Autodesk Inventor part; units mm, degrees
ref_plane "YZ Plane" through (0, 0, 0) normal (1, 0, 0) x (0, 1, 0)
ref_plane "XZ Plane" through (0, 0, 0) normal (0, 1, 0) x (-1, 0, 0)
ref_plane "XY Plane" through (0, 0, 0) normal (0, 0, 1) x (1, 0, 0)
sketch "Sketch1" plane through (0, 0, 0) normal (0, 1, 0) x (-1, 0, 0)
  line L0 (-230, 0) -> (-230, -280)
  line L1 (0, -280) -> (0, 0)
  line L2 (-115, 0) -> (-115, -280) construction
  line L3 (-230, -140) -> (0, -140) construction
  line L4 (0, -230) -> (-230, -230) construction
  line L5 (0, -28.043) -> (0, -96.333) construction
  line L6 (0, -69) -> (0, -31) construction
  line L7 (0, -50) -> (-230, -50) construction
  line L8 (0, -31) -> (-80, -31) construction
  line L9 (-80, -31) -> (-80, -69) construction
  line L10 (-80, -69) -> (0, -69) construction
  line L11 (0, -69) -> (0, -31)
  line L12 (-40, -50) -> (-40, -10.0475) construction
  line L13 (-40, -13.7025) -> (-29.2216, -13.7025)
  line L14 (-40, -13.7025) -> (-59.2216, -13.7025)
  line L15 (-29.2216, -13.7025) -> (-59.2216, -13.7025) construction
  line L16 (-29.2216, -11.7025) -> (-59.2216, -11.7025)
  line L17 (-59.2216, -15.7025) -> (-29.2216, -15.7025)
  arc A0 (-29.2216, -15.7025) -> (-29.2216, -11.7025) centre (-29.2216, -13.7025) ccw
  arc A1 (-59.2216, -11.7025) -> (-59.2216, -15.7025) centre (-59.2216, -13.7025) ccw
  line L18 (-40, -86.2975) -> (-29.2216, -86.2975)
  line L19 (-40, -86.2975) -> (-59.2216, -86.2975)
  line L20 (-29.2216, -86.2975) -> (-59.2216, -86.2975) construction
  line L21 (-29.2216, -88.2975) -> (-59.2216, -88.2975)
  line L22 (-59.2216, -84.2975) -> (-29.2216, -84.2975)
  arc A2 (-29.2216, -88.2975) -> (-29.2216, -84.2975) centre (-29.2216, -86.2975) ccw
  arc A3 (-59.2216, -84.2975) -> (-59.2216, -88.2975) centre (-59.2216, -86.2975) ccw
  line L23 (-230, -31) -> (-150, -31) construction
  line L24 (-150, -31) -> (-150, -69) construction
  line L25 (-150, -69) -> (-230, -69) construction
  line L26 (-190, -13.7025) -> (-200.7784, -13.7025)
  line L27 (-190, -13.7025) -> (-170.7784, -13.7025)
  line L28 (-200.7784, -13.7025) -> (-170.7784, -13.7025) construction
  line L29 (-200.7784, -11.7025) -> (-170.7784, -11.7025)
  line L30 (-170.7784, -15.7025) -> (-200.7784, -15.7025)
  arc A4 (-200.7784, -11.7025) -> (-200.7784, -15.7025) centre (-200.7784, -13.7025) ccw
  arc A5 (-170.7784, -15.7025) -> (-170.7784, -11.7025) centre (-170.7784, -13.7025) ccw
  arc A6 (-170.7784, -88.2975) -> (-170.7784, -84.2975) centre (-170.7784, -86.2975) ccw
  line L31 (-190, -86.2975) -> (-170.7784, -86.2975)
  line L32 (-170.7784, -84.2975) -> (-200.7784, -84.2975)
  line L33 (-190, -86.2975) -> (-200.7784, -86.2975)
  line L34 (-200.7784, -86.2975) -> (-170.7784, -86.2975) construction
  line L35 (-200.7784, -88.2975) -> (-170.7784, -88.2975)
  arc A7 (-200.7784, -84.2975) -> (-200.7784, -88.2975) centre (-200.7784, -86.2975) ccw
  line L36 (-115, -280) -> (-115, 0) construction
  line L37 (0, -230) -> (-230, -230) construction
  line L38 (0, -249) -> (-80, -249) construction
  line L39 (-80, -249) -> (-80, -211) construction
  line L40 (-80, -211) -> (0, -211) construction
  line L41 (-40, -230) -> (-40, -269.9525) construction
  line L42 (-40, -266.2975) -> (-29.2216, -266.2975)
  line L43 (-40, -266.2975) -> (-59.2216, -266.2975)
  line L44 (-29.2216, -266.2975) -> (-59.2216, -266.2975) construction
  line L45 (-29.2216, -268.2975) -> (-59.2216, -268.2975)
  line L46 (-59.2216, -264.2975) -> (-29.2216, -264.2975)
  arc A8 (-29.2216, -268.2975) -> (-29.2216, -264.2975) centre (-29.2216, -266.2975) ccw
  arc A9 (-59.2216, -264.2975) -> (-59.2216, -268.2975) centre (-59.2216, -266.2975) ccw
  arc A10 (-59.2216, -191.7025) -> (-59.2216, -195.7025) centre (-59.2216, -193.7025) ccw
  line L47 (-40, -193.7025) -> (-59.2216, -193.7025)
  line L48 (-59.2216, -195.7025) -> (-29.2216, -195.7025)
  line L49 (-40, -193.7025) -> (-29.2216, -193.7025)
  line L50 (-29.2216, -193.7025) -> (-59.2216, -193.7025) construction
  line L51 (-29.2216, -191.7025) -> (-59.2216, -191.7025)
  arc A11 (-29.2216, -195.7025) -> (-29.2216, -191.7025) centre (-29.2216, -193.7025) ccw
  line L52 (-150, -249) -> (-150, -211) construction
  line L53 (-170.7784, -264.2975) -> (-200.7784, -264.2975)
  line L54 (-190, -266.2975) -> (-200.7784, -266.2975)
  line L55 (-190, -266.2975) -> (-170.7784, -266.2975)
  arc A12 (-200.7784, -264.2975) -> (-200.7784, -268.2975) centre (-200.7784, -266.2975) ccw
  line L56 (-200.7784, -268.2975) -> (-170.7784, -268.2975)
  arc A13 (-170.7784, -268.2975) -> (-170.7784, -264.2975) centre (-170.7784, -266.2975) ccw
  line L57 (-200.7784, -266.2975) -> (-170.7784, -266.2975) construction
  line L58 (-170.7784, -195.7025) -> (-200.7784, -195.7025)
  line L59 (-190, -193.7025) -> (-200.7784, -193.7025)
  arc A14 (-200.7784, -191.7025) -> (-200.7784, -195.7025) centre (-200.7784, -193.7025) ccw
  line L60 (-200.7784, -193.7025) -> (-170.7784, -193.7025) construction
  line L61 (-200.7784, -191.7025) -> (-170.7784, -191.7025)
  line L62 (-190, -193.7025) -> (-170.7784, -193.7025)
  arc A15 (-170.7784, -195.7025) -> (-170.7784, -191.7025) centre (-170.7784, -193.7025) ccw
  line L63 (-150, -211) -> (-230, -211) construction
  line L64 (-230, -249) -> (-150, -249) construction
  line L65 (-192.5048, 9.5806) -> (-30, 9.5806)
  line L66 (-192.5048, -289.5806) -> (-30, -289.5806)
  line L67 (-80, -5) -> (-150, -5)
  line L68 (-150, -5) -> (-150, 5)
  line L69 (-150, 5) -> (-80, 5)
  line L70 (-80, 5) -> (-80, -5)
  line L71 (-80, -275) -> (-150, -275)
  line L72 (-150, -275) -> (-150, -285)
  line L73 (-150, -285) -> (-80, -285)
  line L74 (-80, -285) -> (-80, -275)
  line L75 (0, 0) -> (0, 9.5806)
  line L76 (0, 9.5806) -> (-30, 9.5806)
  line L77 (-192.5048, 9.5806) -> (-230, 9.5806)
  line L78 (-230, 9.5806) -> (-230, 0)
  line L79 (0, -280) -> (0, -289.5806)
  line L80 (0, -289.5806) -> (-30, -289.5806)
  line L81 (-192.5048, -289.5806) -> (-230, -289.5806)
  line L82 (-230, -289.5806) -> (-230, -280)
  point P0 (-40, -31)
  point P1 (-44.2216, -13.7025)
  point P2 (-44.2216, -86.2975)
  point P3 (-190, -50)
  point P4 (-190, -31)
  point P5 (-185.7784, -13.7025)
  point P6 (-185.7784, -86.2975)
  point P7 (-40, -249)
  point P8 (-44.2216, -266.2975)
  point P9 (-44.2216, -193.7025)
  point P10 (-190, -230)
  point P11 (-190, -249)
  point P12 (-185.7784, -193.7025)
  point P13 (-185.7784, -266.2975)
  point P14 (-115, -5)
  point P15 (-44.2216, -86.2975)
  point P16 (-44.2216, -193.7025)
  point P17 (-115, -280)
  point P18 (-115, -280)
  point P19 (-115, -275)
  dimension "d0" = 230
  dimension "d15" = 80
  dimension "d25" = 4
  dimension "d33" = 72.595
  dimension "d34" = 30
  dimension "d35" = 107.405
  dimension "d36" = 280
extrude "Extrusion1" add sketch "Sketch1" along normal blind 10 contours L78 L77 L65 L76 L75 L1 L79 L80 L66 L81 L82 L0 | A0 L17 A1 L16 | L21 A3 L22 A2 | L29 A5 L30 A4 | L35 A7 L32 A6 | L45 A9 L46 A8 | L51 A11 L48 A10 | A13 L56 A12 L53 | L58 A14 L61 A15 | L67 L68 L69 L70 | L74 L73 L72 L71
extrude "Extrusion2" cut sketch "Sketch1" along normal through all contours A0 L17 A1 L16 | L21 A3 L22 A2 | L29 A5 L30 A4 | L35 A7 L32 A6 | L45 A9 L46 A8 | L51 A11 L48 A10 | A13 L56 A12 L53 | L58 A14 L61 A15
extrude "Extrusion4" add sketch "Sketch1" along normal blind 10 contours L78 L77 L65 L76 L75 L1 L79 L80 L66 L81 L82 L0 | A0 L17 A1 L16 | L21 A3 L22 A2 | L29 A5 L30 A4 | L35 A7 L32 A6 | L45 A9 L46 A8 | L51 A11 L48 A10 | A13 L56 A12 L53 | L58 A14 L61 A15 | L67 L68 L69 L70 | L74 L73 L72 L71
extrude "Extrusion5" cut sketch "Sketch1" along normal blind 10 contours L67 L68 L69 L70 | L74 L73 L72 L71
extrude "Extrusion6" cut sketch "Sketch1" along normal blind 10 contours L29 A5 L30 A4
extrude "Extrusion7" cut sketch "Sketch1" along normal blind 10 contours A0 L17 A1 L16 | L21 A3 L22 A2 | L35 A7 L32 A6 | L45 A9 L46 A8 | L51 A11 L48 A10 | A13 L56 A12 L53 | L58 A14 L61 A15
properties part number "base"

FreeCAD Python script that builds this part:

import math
import FreeCAD as App
import Part
import Sketcher

V = App.Vector
Q = App.Units.Quantity

doc = App.newDocument("Part")
body = doc.addObject("PartDesign::Body", "Body")

sketch1 = body.newObject("Sketcher::SketchObject", "Sketch")
sketch1.AttachmentSupport = (doc.getObject("XZ_Plane"), [""])
sketch1.MapMode = "FlatFace"
sketch1.addGeometry(Part.LineSegment(V(230, 10, 0), V(230, -290, 0)), False)
sketch1.addGeometry(Part.LineSegment(V(230, -290, 0), V(0, -290, 0)), False)
sketch1.addGeometry(Part.LineSegment(V(0, -290, 0), V(0, 10, 0)), False)
sketch1.addGeometry(Part.LineSegment(V(0, 10, 0), V(230, 10, 0)), False)
sketch1.addConstraint(Sketcher.Constraint("Coincident", 0, 2, 1, 1))
sketch1.addConstraint(Sketcher.Constraint("Coincident", 1, 2, 2, 1))
sketch1.addConstraint(Sketcher.Constraint("Coincident", 2, 2, 3, 1))
sketch1.addConstraint(Sketcher.Constraint("Coincident", 3, 2, 0, 1))
sketch1.addConstraint(Sketcher.Constraint("Vertical", 0))
sketch1.addConstraint(Sketcher.Constraint("Horizontal", 1))
sketch1.addConstraint(Sketcher.Constraint("Vertical", 2))
sketch1.addConstraint(Sketcher.Constraint("Horizontal", 3))
sketch1.addConstraint(Sketcher.Constraint("PointOnObject", 1, 2, -2))
sketch1.addConstraint(Sketcher.Constraint("DistanceX", 1, 2, 1, 1, Q("230 mm")))
sketch1.addConstraint(Sketcher.Constraint("DistanceY", 0, 2, 0, 1, Q("299.1612 mm")))
sketch1.addConstraint(Sketcher.Constraint("DistanceY", 0, 2, -1, 1, Q("289.5806 mm")))
pad1 = body.newObject("PartDesign::Pad", "Pad")
pad1.Profile = sketch1
pad1.Length = 10
pad1.Reversed = True

sketch2 = body.newObject("Sketcher::SketchObject", "Sketch001")
sketch2.AttachmentSupport = (doc.getObject("XZ_Plane"), [""])
sketch2.MapMode = "FlatFace"
sketch2.addGeometry(Part.ArcOfCircle(Part.Circle(V(29.2, -13.7, 0), V(0, 0, 1), 2), math.radians(90), math.radians(270)), False)
sketch2.addGeometry(Part.LineSegment(V(29.2, -11.7, 0), V(59.2, -11.7, 0)), False)
sketch2.addGeometry(Part.ArcOfCircle(Part.Circle(V(59.2, -13.7, 0), V(0, 0, 1), 2), math.radians(-90), math.radians(90)), False)
sketch2.addGeometry(Part.LineSegment(V(59.2, -15.7, 0), V(29.2, -15.7, 0)), False)
sketch2.addGeometry(Part.LineSegment(V(59.2, -88.3, 0), V(29.2, -88.3, 0)), False)
sketch2.addGeometry(Part.ArcOfCircle(Part.Circle(V(29.2, -86.3, 0), V(0, 0, 1), 2), math.radians(90), math.radians(270)), False)
sketch2.addGeometry(Part.LineSegment(V(29.2, -84.3, 0), V(59.2, -84.3, 0)), False)
sketch2.addGeometry(Part.ArcOfCircle(Part.Circle(V(59.2, -86.3, 0), V(0, 0, 1), 2), math.radians(-90), math.radians(90)), False)
sketch2.addGeometry(Part.LineSegment(V(170.8, -11.7, 0), V(200.8, -11.7, 0)), False)
sketch2.addGeometry(Part.ArcOfCircle(Part.Circle(V(200.8, -13.7, 0), V(0, 0, 1), 2), math.radians(-90), math.radians(90)), False)
sketch2.addGeometry(Part.LineSegment(V(200.8, -15.7, 0), V(170.8, -15.7, 0)), False)
sketch2.addGeometry(Part.ArcOfCircle(Part.Circle(V(170.8, -13.7, 0), V(0, 0, 1), 2), math.radians(90), math.radians(270)), False)
sketch2.addGeometry(Part.LineSegment(V(200.8, -88.3, 0), V(170.8, -88.3, 0)), False)
sketch2.addGeometry(Part.ArcOfCircle(Part.Circle(V(170.8, -86.3, 0), V(0, 0, 1), 2), math.radians(90), math.radians(270)), False)
sketch2.addGeometry(Part.LineSegment(V(170.8, -84.3, 0), V(200.8, -84.3, 0)), False)
sketch2.addGeometry(Part.ArcOfCircle(Part.Circle(V(200.8, -86.3, 0), V(0, 0, 1), 2), math.radians(-90), math.radians(90)), False)
sketch2.addGeometry(Part.LineSegment(V(59.2, -268.3, 0), V(29.2, -268.3, 0)), False)
sketch2.addGeometry(Part.ArcOfCircle(Part.Circle(V(29.2, -266.3, 0), V(0, 0, 1), 2), math.radians(90), math.radians(270)), False)
sketch2.addGeometry(Part.LineSegment(V(29.2, -264.3, 0), V(59.2, -264.3, 0)), False)
sketch2.addGeometry(Part.ArcOfCircle(Part.Circle(V(59.2, -266.3, 0), V(0, 0, 1), 2), math.radians(-90), math.radians(90)), False)
sketch2.addGeometry(Part.LineSegment(V(29.2, -191.7, 0), V(59.2, -191.7, 0)), False)
sketch2.addGeometry(Part.ArcOfCircle(Part.Circle(V(59.2, -193.7, 0), V(0, 0, 1), 2), math.radians(-90), math.radians(90)), False)
sketch2.addGeometry(Part.LineSegment(V(59.2, -195.7, 0), V(29.2, -195.7, 0)), False)
sketch2.addGeometry(Part.ArcOfCircle(Part.Circle(V(29.2, -193.7, 0), V(0, 0, 1), 2), math.radians(90), math.radians(270)), False)
sketch2.addGeometry(Part.ArcOfCircle(Part.Circle(V(170.8, -266.3, 0), V(0, 0, 1), 2), math.radians(90), math.radians(270)), False)
sketch2.addGeometry(Part.LineSegment(V(170.8, -264.3, 0), V(200.8, -264.3, 0)), False)
sketch2.addGeometry(Part.ArcOfCircle(Part.Circle(V(200.8, -266.3, 0), V(0, 0, 1), 2), math.radians(-90), math.radians(90)), False)
sketch2.addGeometry(Part.LineSegment(V(200.8, -268.3, 0), V(170.8, -268.3, 0)), False)
sketch2.addGeometry(Part.LineSegment(V(200.8, -195.7, 0), V(170.8, -195.7, 0)), False)
sketch2.addGeometry(Part.ArcOfCircle(Part.Circle(V(170.8, -193.7, 0), V(0, 0, 1), 2), math.radians(90), math.radians(270)), False)
sketch2.addGeometry(Part.LineSegment(V(170.8, -191.7, 0), V(200.8, -191.7, 0)), False)
sketch2.addGeometry(Part.ArcOfCircle(Part.Circle(V(200.8, -193.7, 0), V(0, 0, 1), 2), math.radians(-90), math.radians(90)), False)
sketch2.addConstraint(Sketcher.Constraint("Tangent", 0, 1, 1, 1))
sketch2.addConstraint(Sketcher.Constraint("Tangent", 1, 2, 2, 2))
sketch2.addConstraint(Sketcher.Constraint("Tangent", 2, 1, 3, 1))
sketch2.addConstraint(Sketcher.Constraint("Tangent", 3, 2, 0, 2))
sketch2.addConstraint(Sketcher.Constraint("Tangent", 4, 2, 5, 2))
sketch2.addConstraint(Sketcher.Constraint("Tangent", 5, 1, 6, 1))
sketch2.addConstraint(Sketcher.Constraint("Tangent", 6, 2, 7, 2))
sketch2.addConstraint(Sketcher.Constraint("Tangent", 7, 1, 4, 1))
sketch2.addConstraint(Sketcher.Constraint("Tangent", 8, 2, 9, 2))
sketch2.addConstraint(Sketcher.Constraint("Tangent", 9, 1, 10, 1))
sketch2.addConstraint(Sketcher.Constraint("Tangent", 10, 2, 11, 2))
sketch2.addConstraint(Sketcher.Constraint("Tangent", 11, 1, 8, 1))
sketch2.addConstraint(Sketcher.Constraint("Tangent", 12, 2, 13, 2))
sketch2.addConstraint(Sketcher.Constraint("Tangent", 13, 1, 14, 1))
sketch2.addConstraint(Sketcher.Constraint("Tangent", 14, 2, 15, 2))
sketch2.addConstraint(Sketcher.Constraint("Tangent", 15, 1, 12, 1))
sketch2.addConstraint(Sketcher.Constraint("Tangent", 16, 2, 17, 2))
sketch2.addConstraint(Sketcher.Constraint("Tangent", 17, 1, 18, 1))
sketch2.addConstraint(Sketcher.Constraint("Tangent", 18, 2, 19, 2))
sketch2.addConstraint(Sketcher.Constraint("Tangent", 19, 1, 16, 1))
sketch2.addConstraint(Sketcher.Constraint("Tangent", 20, 2, 21, 2))
sketch2.addConstraint(Sketcher.Constraint("Tangent", 21, 1, 22, 1))
sketch2.addConstraint(Sketcher.Constraint("Tangent", 22, 2, 23, 2))
sketch2.addConstraint(Sketcher.Constraint("Tangent", 23, 1, 20, 1))
sketch2.addConstraint(Sketcher.Constraint("Tangent", 24, 1, 25, 1))
sketch2.addConstraint(Sketcher.Constraint("Tangent", 25, 2, 26, 2))
sketch2.addConstraint(Sketcher.Constraint("Tangent", 26, 1, 27, 1))
sketch2.addConstraint(Sketcher.Constraint("Tangent", 27, 2, 24, 2))
sketch2.addConstraint(Sketcher.Constraint("Tangent", 28, 2, 29, 2))
sketch2.addConstraint(Sketcher.Constraint("Tangent", 29, 1, 30, 1))
sketch2.addConstraint(Sketcher.Constraint("Tangent", 30, 2, 31, 2))
sketch2.addConstraint(Sketcher.Constraint("Tangent", 31, 1, 28, 1))
sketch2.addConstraint(Sketcher.Constraint("Horizontal", 1))
sketch2.addConstraint(Sketcher.Constraint("Horizontal", 3))
sketch2.addConstraint(Sketcher.Constraint("Horizontal", 4))
sketch2.addConstraint(Sketcher.Constraint("Horizontal", 6))
sketch2.addConstraint(Sketcher.Constraint("Horizontal", 8))
sketch2.addConstraint(Sketcher.Constraint("Horizontal", 10))
sketch2.addConstraint(Sketcher.Constraint("Horizontal", 12))
sketch2.addConstraint(Sketcher.Constraint("Horizontal", 14))
sketch2.addConstraint(Sketcher.Constraint("Horizontal", 16))
sketch2.addConstraint(Sketcher.Constraint("Horizontal", 18))
sketch2.addConstraint(Sketcher.Constraint("Horizontal", 20))
sketch2.addConstraint(Sketcher.Constraint("Horizontal", 22))
sketch2.addConstraint(Sketcher.Constraint("Horizontal", 25))
sketch2.addConstraint(Sketcher.Constraint("Horizontal", 27))
sketch2.addConstraint(Sketcher.Constraint("Horizontal", 28))
sketch2.addConstraint(Sketcher.Constraint("Horizontal", 30))
sketch2.addConstraint(Sketcher.Constraint("Equal", 2, 5))
sketch2.addConstraint(Sketcher.Constraint("Equal", 7, 9))
sketch2.addConstraint(Sketcher.Constraint("Equal", 11, 13))
sketch2.addConstraint(Sketcher.Constraint("Equal", 15, 17))
sketch2.addConstraint(Sketcher.Constraint("Equal", 19, 21))
sketch2.addConstraint(Sketcher.Constraint("Equal", 23, 24))
sketch2.addConstraint(Sketcher.Constraint("Equal", 26, 29))
sketch2.addConstraint(Sketcher.Constraint("Horizontal", 2, 3, 9, 3))
sketch2.addConstraint(Sketcher.Constraint("Horizontal", 7, 3, 13, 3))
sketch2.addConstraint(Sketcher.Constraint("Horizontal", 19, 3, 24, 3))
sketch2.addConstraint(Sketcher.Constraint("Horizontal", 23, 3, 29, 3))
sketch2.addConstraint(Sketcher.Constraint("Vertical", 0, 3, 5, 3))
sketch2.addConstraint(Sketcher.Constraint("Vertical", 2, 3, 7, 3))
sketch2.addConstraint(Sketcher.Constraint("Vertical", 11, 3, 13, 3))
sketch2.addConstraint(Sketcher.Constraint("Vertical", 9, 3, 15, 3))
sketch2.addConstraint(Sketcher.Constraint("Vertical", 5, 3, 17, 3))
sketch2.addConstraint(Sketcher.Constraint("Vertical", 7, 3, 19, 3))
sketch2.addConstraint(Sketcher.Constraint("Vertical", 19, 3, 21, 3))
sketch2.addConstraint(Sketcher.Constraint("Vertical", 17, 3, 23, 3))
sketch2.addConstraint(Sketcher.Constraint("Vertical", 13, 3, 24, 3))
sketch2.addConstraint(Sketcher.Constraint("Vertical", 15, 3, 26, 3))
sketch2.addConstraint(Sketcher.Constraint("Vertical", 24, 3, 29, 3))
sketch2.addConstraint(Sketcher.Constraint("Vertical", 26, 3, 31, 3))
sketch2.addConstraint(Sketcher.Constraint("Equal", 6, 8))
sketch2.addConstraint(Sketcher.Constraint("Radius", 0, Q("2 mm")))
sketch2.addConstraint(Sketcher.Constraint("DistanceX", 1, 1, 1, 2, Q("30 mm")))
sketch2.addConstraint(Sketcher.Constraint("DistanceY", 5, 3, 0, 3, Q("72.595 mm")))
sketch2.addConstraint(Sketcher.Constraint("DistanceY", 17, 3, 5, 3, Q("180 mm")))
sketch2.addConstraint(Sketcher.Constraint("DistanceY", 19, 3, 21, 3, Q("72.595 mm")))
sketch2.addConstraint(Sketcher.Constraint("DistanceX", -1, 1, 0, 3, Q("29.2216 mm")))
sketch2.addConstraint(Sketcher.Constraint("DistanceY", 0, 3, -1, 1, Q("13.7025 mm")))
sketch2.addConstraint(Sketcher.Constraint("DistanceX", -1, 1, 9, 3, Q("200.7784 mm")))
pocket1 = body.newObject("PartDesign::Pocket", "Pocket")
pocket1.Profile = sketch2
pocket1.Type = "ThroughAll"

sketch3 = body.newObject("Sketcher::SketchObject", "Sketch002")
sketch3.AttachmentSupport = (doc.getObject("XZ_Plane"), [""])
sketch3.MapMode = "FlatFace"
sketch3.addGeometry(Part.LineSegment(V(230, 10, 0), V(230, -290, 0)), False)
sketch3.addGeometry(Part.LineSegment(V(230, -290, 0), V(0, -290, 0)), False)
sketch3.addGeometry(Part.LineSegment(V(0, -290, 0), V(0, 10, 0)), False)
sketch3.addGeometry(Part.LineSegment(V(0, 10, 0), V(230, 10, 0)), False)
sketch3.addConstraint(Sketcher.Constraint("Coincident", 0, 2, 1, 1))
sketch3.addConstraint(Sketcher.Constraint("Coincident", 1, 2, 2, 1))
sketch3.addConstraint(Sketcher.Constraint("Coincident", 2, 2, 3, 1))
sketch3.addConstraint(Sketcher.Constraint("Coincident", 3, 2, 0, 1))
sketch3.addConstraint(Sketcher.Constraint("Vertical", 0))
sketch3.addConstraint(Sketcher.Constraint("Horizontal", 1))
sketch3.addConstraint(Sketcher.Constraint("Vertical", 2))
sketch3.addConstraint(Sketcher.Constraint("Horizontal", 3))
sketch3.addConstraint(Sketcher.Constraint("PointOnObject", 1, 2, -2))
sketch3.addConstraint(Sketcher.Constraint("DistanceX", 1, 2, 1, 1, Q("230 mm")))
sketch3.addConstraint(Sketcher.Constraint("DistanceY", 0, 2, 0, 1, Q("299.1612 mm")))
sketch3.addConstraint(Sketcher.Constraint("DistanceY", 0, 2, -1, 1, Q("289.5806 mm")))
pad2 = body.newObject("PartDesign::Pad", "Pad001")
pad2.Profile = sketch3
pad2.Length = 10
pad2.Reversed = True

sketch4 = body.newObject("Sketcher::SketchObject", "Sketch003")
sketch4.AttachmentSupport = (doc.getObject("XZ_Plane"), [""])
sketch4.MapMode = "FlatFace"
sketch4.addGeometry(Part.LineSegment(V(150, -5, 0), V(80, -5, 0)), False)
sketch4.addGeometry(Part.LineSegment(V(80, -5, 0), V(80, 5, 0)), False)
sketch4.addGeometry(Part.LineSegment(V(80, 5, 0), V(150, 5, 0)), False)
sketch4.addGeometry(Part.LineSegment(V(150, 5, 0), V(150, -5, 0)), False)
sketch4.addGeometry(Part.LineSegment(V(80, -285, 0), V(80, -275, 0)), False)
sketch4.addGeometry(Part.LineSegment(V(80, -275, 0), V(150, -275, 0)), False)
sketch4.addGeometry(Part.LineSegment(V(150, -275, 0), V(150, -285, 0)), False)
sketch4.addGeometry(Part.LineSegment(V(150, -285, 0), V(80, -285, 0)), False)
sketch4.addConstraint(Sketcher.Constraint("Coincident", 0, 2, 1, 1))
sketch4.addConstraint(Sketcher.Constraint("Coincident", 1, 2, 2, 1))
sketch4.addConstraint(Sketcher.Constraint("Coincident", 2, 2, 3, 1))
sketch4.addConstraint(Sketcher.Constraint("Coincident", 3, 2, 0, 1))
sketch4.addConstraint(Sketcher.Constraint("Coincident", 4, 2, 5, 1))
sketch4.addConstraint(Sketcher.Constraint("Coincident", 5, 2, 6, 1))
sketch4.addConstraint(Sketcher.Constraint("Coincident", 6, 2, 7, 1))
sketch4.addConstraint(Sketcher.Constraint("Coincident", 7, 2, 4, 1))
sketch4.addConstraint(Sketcher.Constraint("Horizontal", 0))
sketch4.addConstraint(Sketcher.Constraint("Vertical", 1))
sketch4.addConstraint(Sketcher.Constraint("Horizontal", 2))
sketch4.addConstraint(Sketcher.Constraint("Vertical", 3))
sketch4.addConstraint(Sketcher.Constraint("Vertical", 4))
sketch4.addConstraint(Sketcher.Constraint("Horizontal", 5))
sketch4.addConstraint(Sketcher.Constraint("Vertical", 6))
sketch4.addConstraint(Sketcher.Constraint("Horizontal", 7))
sketch4.addConstraint(Sketcher.Constraint("Vertical", 1, 2, 4, 2))
sketch4.addConstraint(Sketcher.Constraint("Vertical", 3, 2, 5, 2))
sketch4.addConstraint(Sketcher.Constraint("Equal", 3, 4))
sketch4.addConstraint(Sketcher.Constraint("DistanceX", -1, 1, 0, 2, Q("80 mm")))
sketch4.addConstraint(Sketcher.Constraint("DistanceY", 4, 2, 1, 2, Q("280 mm")))
sketch4.addConstraint(Sketcher.Constraint("DistanceX", 0, 2, 0, 1, Q("70 mm")))
sketch4.addConstraint(Sketcher.Constraint("DistanceY", 1, 1, 1, 2, Q("10 mm")))
sketch4.addConstraint(Sketcher.Constraint("DistanceY", 0, 2, -1, 1, Q("5 mm")))
pocket2 = body.newObject("PartDesign::Pocket", "Pocket001")
pocket2.Profile = sketch4
pocket2.Length = 10

sketch5 = body.newObject("Sketcher::SketchObject", "Sketch004")
sketch5.AttachmentSupport = (doc.getObject("XZ_Plane"), [""])
sketch5.MapMode = "FlatFace"
sketch5.addGeometry(Part.LineSegment(V(170.8, -11.7, 0), V(200.8, -11.7, 0)), False)
sketch5.addGeometry(Part.ArcOfCircle(Part.Circle(V(200.8, -13.7, 0), V(0, 0, 1), 2), math.radians(-90), math.radians(90)), False)
sketch5.addGeometry(Part.LineSegment(V(200.8, -15.7, 0), V(170.8, -15.7, 0)), False)
sketch5.addGeometry(Part.ArcOfCircle(Part.Circle(V(170.8, -13.7, 0), V(0, 0, 1), 2), math.radians(90), math.radians(270)), False)
sketch5.addConstraint(Sketcher.Constraint("Tangent", 0, 2, 1, 2))
sketch5.addConstraint(Sketcher.Constraint("Tangent", 1, 1, 2, 1))
sketch5.addConstraint(Sketcher.Constraint("Tangent", 2, 2, 3, 2))
sketch5.addConstraint(Sketcher.Constraint("Tangent", 3, 1, 0, 1))
sketch5.addConstraint(Sketcher.Constraint("Horizontal", 0))
sketch5.addConstraint(Sketcher.Constraint("Horizontal", 2))
sketch5.addConstraint(Sketcher.Constraint("Radius", 1, Q("2 mm")))
sketch5.addConstraint(Sketcher.Constraint("DistanceX", 0, 1, 0, 2, Q("30 mm")))
sketch5.addConstraint(Sketcher.Constraint("DistanceX", -1, 1, 1, 3, Q("200.7784 mm")))
sketch5.addConstraint(Sketcher.Constraint("DistanceY", 1, 3, -1, 1, Q("13.7025 mm")))
pocket3 = body.newObject("PartDesign::Pocket", "Pocket002")
pocket3.Profile = sketch5
pocket3.Length = 10

sketch6 = body.newObject("Sketcher::SketchObject", "Sketch005")
sketch6.AttachmentSupport = (doc.getObject("XZ_Plane"), [""])
sketch6.MapMode = "FlatFace"
sketch6.addGeometry(Part.ArcOfCircle(Part.Circle(V(29.2, -13.7, 0), V(0, 0, 1), 2), math.radians(90), math.radians(270)), False)
sketch6.addGeometry(Part.LineSegment(V(29.2, -11.7, 0), V(59.2, -11.7, 0)), False)
sketch6.addGeometry(Part.ArcOfCircle(Part.Circle(V(59.2, -13.7, 0), V(0, 0, 1), 2), math.radians(-90), math.radians(90)), False)
sketch6.addGeometry(Part.LineSegment(V(59.2, -15.7, 0), V(29.2, -15.7, 0)), False)
sketch6.addGeometry(Part.LineSegment(V(59.2, -88.3, 0), V(29.2, -88.3, 0)), False)
sketch6.addGeometry(Part.ArcOfCircle(Part.Circle(V(29.2, -86.3, 0), V(0, 0, 1), 2), math.radians(90), math.radians(270)), False)
sketch6.addGeometry(Part.LineSegment(V(29.2, -84.3, 0), V(59.2, -84.3, 0)), False)
sketch6.addGeometry(Part.ArcOfCircle(Part.Circle(V(59.2, -86.3, 0), V(0, 0, 1), 2), math.radians(-90), math.radians(90)), False)
sketch6.addGeometry(Part.LineSegment(V(200.8, -88.3, 0), V(170.8, -88.3, 0)), False)
sketch6.addGeometry(Part.ArcOfCircle(Part.Circle(V(170.8, -86.3, 0), V(0, 0, 1), 2), math.radians(90), math.radians(270)), False)
sketch6.addGeometry(Part.LineSegment(V(170.8, -84.3, 0), V(200.8, -84.3, 0)), False)
sketch6.addGeometry(Part.ArcOfCircle(Part.Circle(V(200.8, -86.3, 0), V(0, 0, 1), 2), math.radians(-90), math.radians(90)), False)
sketch6.addGeometry(Part.LineSegment(V(59.2, -268.3, 0), V(29.2, -268.3, 0)), False)
sketch6.addGeometry(Part.ArcOfCircle(Part.Circle(V(29.2, -266.3, 0), V(0, 0, 1), 2), math.radians(90), math.radians(270)), False)
sketch6.addGeometry(Part.LineSegment(V(29.2, -264.3, 0), V(59.2, -264.3, 0)), False)
sketch6.addGeometry(Part.ArcOfCircle(Part.Circle(V(59.2, -266.3, 0), V(0, 0, 1), 2), math.radians(-90), math.radians(90)), False)
sketch6.addGeometry(Part.LineSegment(V(29.2, -191.7, 0), V(59.2, -191.7, 0)), False)
sketch6.addGeometry(Part.ArcOfCircle(Part.Circle(V(59.2, -193.7, 0), V(0, 0, 1), 2), math.radians(-90), math.radians(90)), False)
sketch6.addGeometry(Part.LineSegment(V(59.2, -195.7, 0), V(29.2, -195.7, 0)), False)
sketch6.addGeometry(Part.ArcOfCircle(Part.Circle(V(29.2, -193.7, 0), V(0, 0, 1), 2), math.radians(90), math.radians(270)), False)
sketch6.addGeometry(Part.ArcOfCircle(Part.Circle(V(170.8, -266.3, 0), V(0, 0, 1), 2), math.radians(90), math.radians(270)), False)
sketch6.addGeometry(Part.LineSegment(V(170.8, -264.3, 0), V(200.8, -264.3, 0)), False)
sketch6.addGeometry(Part.ArcOfCircle(Part.Circle(V(200.8, -266.3, 0), V(0, 0, 1), 2), math.radians(-90), math.radians(90)), False)
sketch6.addGeometry(Part.LineSegment(V(200.8, -268.3, 0), V(170.8, -268.3, 0)), False)
sketch6.addGeometry(Part.LineSegment(V(200.8, -195.7, 0), V(170.8, -195.7, 0)), False)
sketch6.addGeometry(Part.ArcOfCircle(Part.Circle(V(170.8, -193.7, 0), V(0, 0, 1), 2), math.radians(90), math.radians(270)), False)
sketch6.addGeometry(Part.LineSegment(V(170.8, -191.7, 0), V(200.8, -191.7, 0)), False)
sketch6.addGeometry(Part.ArcOfCircle(Part.Circle(V(200.8, -193.7, 0), V(0, 0, 1), 2), math.radians(-90), math.radians(90)), False)
sketch6.addConstraint(Sketcher.Constraint("Tangent", 0, 1, 1, 1))
sketch6.addConstraint(Sketcher.Constraint("Tangent", 1, 2, 2, 2))
sketch6.addConstraint(Sketcher.Constraint("Tangent", 2, 1, 3, 1))
sketch6.addConstraint(Sketcher.Constraint("Tangent", 3, 2, 0, 2))
sketch6.addConstraint(Sketcher.Constraint("Tangent", 4, 2, 5, 2))
sketch6.addConstraint(Sketcher.Constraint("Tangent", 5, 1, 6, 1))
sketch6.addConstraint(Sketcher.Constraint("Tangent", 6, 2, 7, 2))
sketch6.addConstraint(Sketcher.Constraint("Tangent", 7, 1, 4, 1))
sketch6.addConstraint(Sketcher.Constraint("Tangent", 8, 2, 9, 2))
sketch6.addConstraint(Sketcher.Constraint("Tangent", 9, 1, 10, 1))
sketch6.addConstraint(Sketcher.Constraint("Tangent", 10, 2, 11, 2))
sketch6.addConstraint(Sketcher.Constraint("Tangent", 11, 1, 8, 1))
sketch6.addConstraint(Sketcher.Constraint("Tangent", 12, 2, 13, 2))
sketch6.addConstraint(Sketcher.Constraint("Tangent", 13, 1, 14, 1))
sketch6.addConstraint(Sketcher.Constraint("Tangent", 14, 2, 15, 2))
sketch6.addConstraint(Sketcher.Constraint("Tangent", 15, 1, 12, 1))
sketch6.addConstraint(Sketcher.Constraint("Tangent", 16, 2, 17, 2))
sketch6.addConstraint(Sketcher.Constraint("Tangent", 17, 1, 18, 1))
sketch6.addConstraint(Sketcher.Constraint("Tangent", 18, 2, 19, 2))
sketch6.addConstraint(Sketcher.Constraint("Tangent", 19, 1, 16, 1))
sketch6.addConstraint(Sketcher.Constraint("Tangent", 20, 1, 21, 1))
sketch6.addConstraint(Sketcher.Constraint("Tangent", 21, 2, 22, 2))
sketch6.addConstraint(Sketcher.Constraint("Tangent", 22, 1, 23, 1))
sketch6.addConstraint(Sketcher.Constraint("Tangent", 23, 2, 20, 2))
sketch6.addConstraint(Sketcher.Constraint("Tangent", 24, 2, 25, 2))
sketch6.addConstraint(Sketcher.Constraint("Tangent", 25, 1, 26, 1))
sketch6.addConstraint(Sketcher.Constraint("Tangent", 26, 2, 27, 2))
sketch6.addConstraint(Sketcher.Constraint("Tangent", 27, 1, 24, 1))
sketch6.addConstraint(Sketcher.Constraint("Horizontal", 1))
sketch6.addConstraint(Sketcher.Constraint("Horizontal", 3))
sketch6.addConstraint(Sketcher.Constraint("Horizontal", 4))
sketch6.addConstraint(Sketcher.Constraint("Horizontal", 6))
sketch6.addConstraint(Sketcher.Constraint("Horizontal", 8))
sketch6.addConstraint(Sketcher.Constraint("Horizontal", 10))
sketch6.addConstraint(Sketcher.Constraint("Horizontal", 12))
sketch6.addConstraint(Sketcher.Constraint("Horizontal", 14))
sketch6.addConstraint(Sketcher.Constraint("Horizontal", 16))
sketch6.addConstraint(Sketcher.Constraint("Horizontal", 18))
sketch6.addConstraint(Sketcher.Constraint("Horizontal", 21))
sketch6.addConstraint(Sketcher.Constraint("Horizontal", 23))
sketch6.addConstraint(Sketcher.Constraint("Horizontal", 24))
sketch6.addConstraint(Sketcher.Constraint("Horizontal", 26))
sketch6.addConstraint(Sketcher.Constraint("Equal", 2, 5))
sketch6.addConstraint(Sketcher.Constraint("Equal", 7, 9))
sketch6.addConstraint(Sketcher.Constraint("Equal", 11, 13))
sketch6.addConstraint(Sketcher.Constraint("Equal", 15, 17))
sketch6.addConstraint(Sketcher.Constraint("Equal", 19, 20))
sketch6.addConstraint(Sketcher.Constraint("Equal", 22, 25))
sketch6.addConstraint(Sketcher.Constraint("Horizontal", 7, 3, 9, 3))
sketch6.addConstraint(Sketcher.Constraint("Horizontal", 15, 3, 20, 3))
sketch6.addConstraint(Sketcher.Constraint("Horizontal", 19, 3, 25, 3))
sketch6.addConstraint(Sketcher.Constraint("Vertical", 0, 3, 5, 3))
sketch6.addConstraint(Sketcher.Constraint("Vertical", 2, 3, 7, 3))
sketch6.addConstraint(Sketcher.Constraint("Vertical", 5, 3, 13, 3))
sketch6.addConstraint(Sketcher.Constraint("Vertical", 7, 3, 15, 3))
sketch6.addConstraint(Sketcher.Constraint("Vertical", 15, 3, 17, 3))
sketch6.addConstraint(Sketcher.Constraint("Vertical", 13, 3, 19, 3))
sketch6.addConstraint(Sketcher.Constraint("Vertical", 9, 3, 20, 3))
sketch6.addConstraint(Sketcher.Constraint("Vertical", 11, 3, 22, 3))
sketch6.addConstraint(Sketcher.Constraint("Vertical", 20, 3, 25, 3))
sketch6.addConstraint(Sketcher.Constraint("Vertical", 22, 3, 27, 3))
sketch6.addConstraint(Sketcher.Constraint("Equal", 6, 8))
sketch6.addConstraint(Sketcher.Constraint("Radius", 0, Q("2 mm")))
sketch6.addConstraint(Sketcher.Constraint("DistanceX", 1, 1, 1, 2, Q("30 mm")))
sketch6.addConstraint(Sketcher.Constraint("DistanceY", 5, 3, 0, 3, Q("72.595 mm")))
sketch6.addConstraint(Sketcher.Constraint("DistanceY", 13, 3, 5, 3, Q("180 mm")))
sketch6.addConstraint(Sketcher.Constraint("DistanceY", 15, 3, 17, 3, Q("72.595 mm")))
sketch6.addConstraint(Sketcher.Constraint("DistanceX", -1, 1, 0, 3, Q("29.2216 mm")))
sketch6.addConstraint(Sketcher.Constraint("DistanceY", 0, 3, -1, 1, Q("13.7025 mm")))
sketch6.addConstraint(Sketcher.Constraint("DistanceX", -1, 1, 9, 3, Q("170.7784 mm")))
pocket4 = body.newObject("PartDesign::Pocket", "Pocket003")
pocket4.Profile = sketch6
pocket4.Length = 10

doc.recompute()
